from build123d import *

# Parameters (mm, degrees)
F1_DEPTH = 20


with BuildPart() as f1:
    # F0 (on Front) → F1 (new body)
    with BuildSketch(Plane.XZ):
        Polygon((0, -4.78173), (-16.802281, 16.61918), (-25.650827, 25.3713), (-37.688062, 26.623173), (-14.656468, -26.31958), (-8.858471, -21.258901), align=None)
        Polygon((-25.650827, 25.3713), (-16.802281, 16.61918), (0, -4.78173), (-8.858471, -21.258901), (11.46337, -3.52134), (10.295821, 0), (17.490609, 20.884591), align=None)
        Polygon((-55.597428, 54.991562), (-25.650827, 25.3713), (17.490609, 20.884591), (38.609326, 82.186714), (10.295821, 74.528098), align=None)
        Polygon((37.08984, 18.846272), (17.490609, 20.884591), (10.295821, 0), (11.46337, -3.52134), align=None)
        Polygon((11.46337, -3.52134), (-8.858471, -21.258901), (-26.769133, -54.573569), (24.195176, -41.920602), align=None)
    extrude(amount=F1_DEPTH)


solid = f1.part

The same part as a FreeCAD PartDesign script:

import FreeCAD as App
import Part
import Sketcher
from FreeCAD import Vector
Q = App.Units.Quantity


def add_polygon(sketch, points):
    """Adds a closed chain of lines whose ends are joined by coincident constraints."""
    first, n = sketch.GeometryCount, len(points)
    for a, b in zip(points, points[1:] + points[:1]):
        sketch.addGeometry(Part.LineSegment(App.Vector(*a, 0), App.Vector(*b, 0)), False)
    for i in range(n):
        sketch.addConstraint(Sketcher.Constraint("Coincident", first + i, 2, first + (i + 1) % n, 1))

doc = App.newDocument("Part")
body = doc.addObject("PartDesign::Body", "Body")

# Sketch on XZ plane
sketch1 = body.newObject("Sketcher::SketchObject", "Sketch")
sketch1.AttachmentSupport = (doc.getObject("XZ_Plane"), [""])
sketch1.MapMode = "FlatFace"
add_polygon(sketch1, [(-25.650827, 25.3713), (-37.688062, 26.623173), (-14.656468, -26.31958), (-8.858471, -21.258901), (-26.769133, -54.573569), (24.195176, -41.920602), (11.46337, -3.52134), (37.08984, 18.846272), (17.490609, 20.884591), (38.609326, 82.186714), (10.295821, 74.528098), (-55.597428, 54.991562)])  # lines 0-11
sketch1.addConstraint([
    Sketcher.Constraint("DistanceY", 2, 2, -1, 1, Q("21.258901 mm")),
    Sketcher.Constraint("DistanceY", -1, 1, 9, 2, Q("74.528098 mm")),
    Sketcher.Constraint("DistanceY", -1, 1, 11, 2, Q("25.3713 mm")),
    Sketcher.Constraint("DistanceY", 4, 2, 2, 2, Q("20.661701 mm")),
    Sketcher.Constraint("DistanceY", 6, 2, 0, 2, Q("7.776901 mm")),
    Sketcher.Constraint("DistanceX", 10, 2, 5, 2, Q("67.060798 mm")),
    Sketcher.Constraint("DistanceX", 10, 2, 11, 2, Q("29.946601 mm")),
    Sketcher.Constraint("Distance", 5, Q("40.45494 mm")),
    Sketcher.Constraint("Distance", 7, Q("19.704938 mm")),
    Sketcher.Constraint("Distance", 8, Q("64.837879 mm")),
    Sketcher.Constraint("DistanceY", 1, 2, -1, 1, Q("26.31958 mm")),
    Sketcher.Constraint("DistanceX", 2, 2, -1, 1, Q("8.858471 mm")),
    Sketcher.Constraint("DistanceY", 3, 2, -1, 1, Q("54.573569 mm")),
    Sketcher.Constraint("DistanceX", -1, 1, 5, 2, Q("11.46337 mm")),
    Sketcher.Constraint("DistanceY", 5, 2, -1, 1, Q("3.52134 mm")),
    Sketcher.Constraint("DistanceX", -1, 1, 6, 2, Q("37.08984 mm")),
    Sketcher.Constraint("DistanceY", -1, 1, 6, 2, Q("18.846272 mm")),
    Sketcher.Constraint("DistanceX", -1, 1, 7, 2, Q("17.490609 mm")),
    Sketcher.Constraint("DistanceX", -1, 1, 9, 2, Q("10.295821 mm")),
    Sketcher.Constraint("DistanceX", 0, 2, 2, 2, Q("28.829591 mm")),
    Sketcher.Constraint("DistanceX", 0, 2, 3, 2, Q("10.918929 mm")),
    Sketcher.Constraint("DistanceX", 1, 2, 5, 2, Q("26.119838 mm")),
    Sketcher.Constraint("DistanceY", 6, 2, 8, 2, Q("63.340442 mm")),
    Sketcher.Constraint("DistanceY", 0, 2, 10, 2, Q("28.368389 mm")),
])
pad1 = body.newObject("PartDesign::Pad", "Pad")
pad1.Profile = sketch1
pad1.Length = 20

doc.recompute()
